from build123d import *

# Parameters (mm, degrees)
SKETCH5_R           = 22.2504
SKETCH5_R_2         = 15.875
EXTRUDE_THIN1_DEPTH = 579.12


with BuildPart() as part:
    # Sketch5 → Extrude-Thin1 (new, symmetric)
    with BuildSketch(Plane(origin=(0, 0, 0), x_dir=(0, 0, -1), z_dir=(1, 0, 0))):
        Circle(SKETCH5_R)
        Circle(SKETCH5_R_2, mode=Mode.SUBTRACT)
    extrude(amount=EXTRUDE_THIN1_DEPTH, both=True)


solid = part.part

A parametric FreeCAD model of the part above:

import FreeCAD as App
import Part
import Sketcher
from FreeCAD import Vector
Q = App.Units.Quantity

doc = App.newDocument("Part")
params = doc.addObject("Spreadsheet::Sheet", "Params")
for row, (alias, value) in enumerate([
    ("sketch1_diameter", "1.25 in"),
    ("sketch1_diameter2", "1.752 in"),
    ("pad1_length", "45.6 in"),
], start=1):
    params.set(f"A{row}", alias)
    params.set(f"B{row}", "=" + value)
    params.setAlias(f"B{row}", alias)

body = doc.addObject("PartDesign::Body", "Body")

# Sketch on YZ plane
sketch1 = doc.addObject("Sketcher::SketchObject", "Sketch")
body.addObject(sketch1)
sketch1.AttachmentSupport = (doc.YZ_Plane, [""])
sketch1.MapMode = "FlatFace"
sketch1.addGeometry([
    Part.Circle(Vector(0, 0, 0), Vector(0, 0, 1), 22),
    Part.Circle(Vector(0, 0, 0), Vector(0, 0, 1), 16),
], False)
sketch1.addConstraint([
    Sketcher.Constraint("Coincident", 0, 3, -1, 1),
    Sketcher.Constraint("Coincident", 1, 3, -1, 1),
    Sketcher.Constraint("Diameter", 1, Q("1.25 in")),
    Sketcher.Constraint("Diameter", 0, Q("1.752 in")),
])
sketch1.setExpression("Constraints[2]", "Params.sketch1_diameter")
sketch1.setExpression("Constraints[3]", "Params.sketch1_diameter2")
pad1 = doc.addObject("PartDesign::Pad", "Pad")
body.addObject(pad1)
pad1.Profile = sketch1
pad1.setExpression("Length", "Params.pad1_length")
pad1.Midplane = True

doc.recompute()
